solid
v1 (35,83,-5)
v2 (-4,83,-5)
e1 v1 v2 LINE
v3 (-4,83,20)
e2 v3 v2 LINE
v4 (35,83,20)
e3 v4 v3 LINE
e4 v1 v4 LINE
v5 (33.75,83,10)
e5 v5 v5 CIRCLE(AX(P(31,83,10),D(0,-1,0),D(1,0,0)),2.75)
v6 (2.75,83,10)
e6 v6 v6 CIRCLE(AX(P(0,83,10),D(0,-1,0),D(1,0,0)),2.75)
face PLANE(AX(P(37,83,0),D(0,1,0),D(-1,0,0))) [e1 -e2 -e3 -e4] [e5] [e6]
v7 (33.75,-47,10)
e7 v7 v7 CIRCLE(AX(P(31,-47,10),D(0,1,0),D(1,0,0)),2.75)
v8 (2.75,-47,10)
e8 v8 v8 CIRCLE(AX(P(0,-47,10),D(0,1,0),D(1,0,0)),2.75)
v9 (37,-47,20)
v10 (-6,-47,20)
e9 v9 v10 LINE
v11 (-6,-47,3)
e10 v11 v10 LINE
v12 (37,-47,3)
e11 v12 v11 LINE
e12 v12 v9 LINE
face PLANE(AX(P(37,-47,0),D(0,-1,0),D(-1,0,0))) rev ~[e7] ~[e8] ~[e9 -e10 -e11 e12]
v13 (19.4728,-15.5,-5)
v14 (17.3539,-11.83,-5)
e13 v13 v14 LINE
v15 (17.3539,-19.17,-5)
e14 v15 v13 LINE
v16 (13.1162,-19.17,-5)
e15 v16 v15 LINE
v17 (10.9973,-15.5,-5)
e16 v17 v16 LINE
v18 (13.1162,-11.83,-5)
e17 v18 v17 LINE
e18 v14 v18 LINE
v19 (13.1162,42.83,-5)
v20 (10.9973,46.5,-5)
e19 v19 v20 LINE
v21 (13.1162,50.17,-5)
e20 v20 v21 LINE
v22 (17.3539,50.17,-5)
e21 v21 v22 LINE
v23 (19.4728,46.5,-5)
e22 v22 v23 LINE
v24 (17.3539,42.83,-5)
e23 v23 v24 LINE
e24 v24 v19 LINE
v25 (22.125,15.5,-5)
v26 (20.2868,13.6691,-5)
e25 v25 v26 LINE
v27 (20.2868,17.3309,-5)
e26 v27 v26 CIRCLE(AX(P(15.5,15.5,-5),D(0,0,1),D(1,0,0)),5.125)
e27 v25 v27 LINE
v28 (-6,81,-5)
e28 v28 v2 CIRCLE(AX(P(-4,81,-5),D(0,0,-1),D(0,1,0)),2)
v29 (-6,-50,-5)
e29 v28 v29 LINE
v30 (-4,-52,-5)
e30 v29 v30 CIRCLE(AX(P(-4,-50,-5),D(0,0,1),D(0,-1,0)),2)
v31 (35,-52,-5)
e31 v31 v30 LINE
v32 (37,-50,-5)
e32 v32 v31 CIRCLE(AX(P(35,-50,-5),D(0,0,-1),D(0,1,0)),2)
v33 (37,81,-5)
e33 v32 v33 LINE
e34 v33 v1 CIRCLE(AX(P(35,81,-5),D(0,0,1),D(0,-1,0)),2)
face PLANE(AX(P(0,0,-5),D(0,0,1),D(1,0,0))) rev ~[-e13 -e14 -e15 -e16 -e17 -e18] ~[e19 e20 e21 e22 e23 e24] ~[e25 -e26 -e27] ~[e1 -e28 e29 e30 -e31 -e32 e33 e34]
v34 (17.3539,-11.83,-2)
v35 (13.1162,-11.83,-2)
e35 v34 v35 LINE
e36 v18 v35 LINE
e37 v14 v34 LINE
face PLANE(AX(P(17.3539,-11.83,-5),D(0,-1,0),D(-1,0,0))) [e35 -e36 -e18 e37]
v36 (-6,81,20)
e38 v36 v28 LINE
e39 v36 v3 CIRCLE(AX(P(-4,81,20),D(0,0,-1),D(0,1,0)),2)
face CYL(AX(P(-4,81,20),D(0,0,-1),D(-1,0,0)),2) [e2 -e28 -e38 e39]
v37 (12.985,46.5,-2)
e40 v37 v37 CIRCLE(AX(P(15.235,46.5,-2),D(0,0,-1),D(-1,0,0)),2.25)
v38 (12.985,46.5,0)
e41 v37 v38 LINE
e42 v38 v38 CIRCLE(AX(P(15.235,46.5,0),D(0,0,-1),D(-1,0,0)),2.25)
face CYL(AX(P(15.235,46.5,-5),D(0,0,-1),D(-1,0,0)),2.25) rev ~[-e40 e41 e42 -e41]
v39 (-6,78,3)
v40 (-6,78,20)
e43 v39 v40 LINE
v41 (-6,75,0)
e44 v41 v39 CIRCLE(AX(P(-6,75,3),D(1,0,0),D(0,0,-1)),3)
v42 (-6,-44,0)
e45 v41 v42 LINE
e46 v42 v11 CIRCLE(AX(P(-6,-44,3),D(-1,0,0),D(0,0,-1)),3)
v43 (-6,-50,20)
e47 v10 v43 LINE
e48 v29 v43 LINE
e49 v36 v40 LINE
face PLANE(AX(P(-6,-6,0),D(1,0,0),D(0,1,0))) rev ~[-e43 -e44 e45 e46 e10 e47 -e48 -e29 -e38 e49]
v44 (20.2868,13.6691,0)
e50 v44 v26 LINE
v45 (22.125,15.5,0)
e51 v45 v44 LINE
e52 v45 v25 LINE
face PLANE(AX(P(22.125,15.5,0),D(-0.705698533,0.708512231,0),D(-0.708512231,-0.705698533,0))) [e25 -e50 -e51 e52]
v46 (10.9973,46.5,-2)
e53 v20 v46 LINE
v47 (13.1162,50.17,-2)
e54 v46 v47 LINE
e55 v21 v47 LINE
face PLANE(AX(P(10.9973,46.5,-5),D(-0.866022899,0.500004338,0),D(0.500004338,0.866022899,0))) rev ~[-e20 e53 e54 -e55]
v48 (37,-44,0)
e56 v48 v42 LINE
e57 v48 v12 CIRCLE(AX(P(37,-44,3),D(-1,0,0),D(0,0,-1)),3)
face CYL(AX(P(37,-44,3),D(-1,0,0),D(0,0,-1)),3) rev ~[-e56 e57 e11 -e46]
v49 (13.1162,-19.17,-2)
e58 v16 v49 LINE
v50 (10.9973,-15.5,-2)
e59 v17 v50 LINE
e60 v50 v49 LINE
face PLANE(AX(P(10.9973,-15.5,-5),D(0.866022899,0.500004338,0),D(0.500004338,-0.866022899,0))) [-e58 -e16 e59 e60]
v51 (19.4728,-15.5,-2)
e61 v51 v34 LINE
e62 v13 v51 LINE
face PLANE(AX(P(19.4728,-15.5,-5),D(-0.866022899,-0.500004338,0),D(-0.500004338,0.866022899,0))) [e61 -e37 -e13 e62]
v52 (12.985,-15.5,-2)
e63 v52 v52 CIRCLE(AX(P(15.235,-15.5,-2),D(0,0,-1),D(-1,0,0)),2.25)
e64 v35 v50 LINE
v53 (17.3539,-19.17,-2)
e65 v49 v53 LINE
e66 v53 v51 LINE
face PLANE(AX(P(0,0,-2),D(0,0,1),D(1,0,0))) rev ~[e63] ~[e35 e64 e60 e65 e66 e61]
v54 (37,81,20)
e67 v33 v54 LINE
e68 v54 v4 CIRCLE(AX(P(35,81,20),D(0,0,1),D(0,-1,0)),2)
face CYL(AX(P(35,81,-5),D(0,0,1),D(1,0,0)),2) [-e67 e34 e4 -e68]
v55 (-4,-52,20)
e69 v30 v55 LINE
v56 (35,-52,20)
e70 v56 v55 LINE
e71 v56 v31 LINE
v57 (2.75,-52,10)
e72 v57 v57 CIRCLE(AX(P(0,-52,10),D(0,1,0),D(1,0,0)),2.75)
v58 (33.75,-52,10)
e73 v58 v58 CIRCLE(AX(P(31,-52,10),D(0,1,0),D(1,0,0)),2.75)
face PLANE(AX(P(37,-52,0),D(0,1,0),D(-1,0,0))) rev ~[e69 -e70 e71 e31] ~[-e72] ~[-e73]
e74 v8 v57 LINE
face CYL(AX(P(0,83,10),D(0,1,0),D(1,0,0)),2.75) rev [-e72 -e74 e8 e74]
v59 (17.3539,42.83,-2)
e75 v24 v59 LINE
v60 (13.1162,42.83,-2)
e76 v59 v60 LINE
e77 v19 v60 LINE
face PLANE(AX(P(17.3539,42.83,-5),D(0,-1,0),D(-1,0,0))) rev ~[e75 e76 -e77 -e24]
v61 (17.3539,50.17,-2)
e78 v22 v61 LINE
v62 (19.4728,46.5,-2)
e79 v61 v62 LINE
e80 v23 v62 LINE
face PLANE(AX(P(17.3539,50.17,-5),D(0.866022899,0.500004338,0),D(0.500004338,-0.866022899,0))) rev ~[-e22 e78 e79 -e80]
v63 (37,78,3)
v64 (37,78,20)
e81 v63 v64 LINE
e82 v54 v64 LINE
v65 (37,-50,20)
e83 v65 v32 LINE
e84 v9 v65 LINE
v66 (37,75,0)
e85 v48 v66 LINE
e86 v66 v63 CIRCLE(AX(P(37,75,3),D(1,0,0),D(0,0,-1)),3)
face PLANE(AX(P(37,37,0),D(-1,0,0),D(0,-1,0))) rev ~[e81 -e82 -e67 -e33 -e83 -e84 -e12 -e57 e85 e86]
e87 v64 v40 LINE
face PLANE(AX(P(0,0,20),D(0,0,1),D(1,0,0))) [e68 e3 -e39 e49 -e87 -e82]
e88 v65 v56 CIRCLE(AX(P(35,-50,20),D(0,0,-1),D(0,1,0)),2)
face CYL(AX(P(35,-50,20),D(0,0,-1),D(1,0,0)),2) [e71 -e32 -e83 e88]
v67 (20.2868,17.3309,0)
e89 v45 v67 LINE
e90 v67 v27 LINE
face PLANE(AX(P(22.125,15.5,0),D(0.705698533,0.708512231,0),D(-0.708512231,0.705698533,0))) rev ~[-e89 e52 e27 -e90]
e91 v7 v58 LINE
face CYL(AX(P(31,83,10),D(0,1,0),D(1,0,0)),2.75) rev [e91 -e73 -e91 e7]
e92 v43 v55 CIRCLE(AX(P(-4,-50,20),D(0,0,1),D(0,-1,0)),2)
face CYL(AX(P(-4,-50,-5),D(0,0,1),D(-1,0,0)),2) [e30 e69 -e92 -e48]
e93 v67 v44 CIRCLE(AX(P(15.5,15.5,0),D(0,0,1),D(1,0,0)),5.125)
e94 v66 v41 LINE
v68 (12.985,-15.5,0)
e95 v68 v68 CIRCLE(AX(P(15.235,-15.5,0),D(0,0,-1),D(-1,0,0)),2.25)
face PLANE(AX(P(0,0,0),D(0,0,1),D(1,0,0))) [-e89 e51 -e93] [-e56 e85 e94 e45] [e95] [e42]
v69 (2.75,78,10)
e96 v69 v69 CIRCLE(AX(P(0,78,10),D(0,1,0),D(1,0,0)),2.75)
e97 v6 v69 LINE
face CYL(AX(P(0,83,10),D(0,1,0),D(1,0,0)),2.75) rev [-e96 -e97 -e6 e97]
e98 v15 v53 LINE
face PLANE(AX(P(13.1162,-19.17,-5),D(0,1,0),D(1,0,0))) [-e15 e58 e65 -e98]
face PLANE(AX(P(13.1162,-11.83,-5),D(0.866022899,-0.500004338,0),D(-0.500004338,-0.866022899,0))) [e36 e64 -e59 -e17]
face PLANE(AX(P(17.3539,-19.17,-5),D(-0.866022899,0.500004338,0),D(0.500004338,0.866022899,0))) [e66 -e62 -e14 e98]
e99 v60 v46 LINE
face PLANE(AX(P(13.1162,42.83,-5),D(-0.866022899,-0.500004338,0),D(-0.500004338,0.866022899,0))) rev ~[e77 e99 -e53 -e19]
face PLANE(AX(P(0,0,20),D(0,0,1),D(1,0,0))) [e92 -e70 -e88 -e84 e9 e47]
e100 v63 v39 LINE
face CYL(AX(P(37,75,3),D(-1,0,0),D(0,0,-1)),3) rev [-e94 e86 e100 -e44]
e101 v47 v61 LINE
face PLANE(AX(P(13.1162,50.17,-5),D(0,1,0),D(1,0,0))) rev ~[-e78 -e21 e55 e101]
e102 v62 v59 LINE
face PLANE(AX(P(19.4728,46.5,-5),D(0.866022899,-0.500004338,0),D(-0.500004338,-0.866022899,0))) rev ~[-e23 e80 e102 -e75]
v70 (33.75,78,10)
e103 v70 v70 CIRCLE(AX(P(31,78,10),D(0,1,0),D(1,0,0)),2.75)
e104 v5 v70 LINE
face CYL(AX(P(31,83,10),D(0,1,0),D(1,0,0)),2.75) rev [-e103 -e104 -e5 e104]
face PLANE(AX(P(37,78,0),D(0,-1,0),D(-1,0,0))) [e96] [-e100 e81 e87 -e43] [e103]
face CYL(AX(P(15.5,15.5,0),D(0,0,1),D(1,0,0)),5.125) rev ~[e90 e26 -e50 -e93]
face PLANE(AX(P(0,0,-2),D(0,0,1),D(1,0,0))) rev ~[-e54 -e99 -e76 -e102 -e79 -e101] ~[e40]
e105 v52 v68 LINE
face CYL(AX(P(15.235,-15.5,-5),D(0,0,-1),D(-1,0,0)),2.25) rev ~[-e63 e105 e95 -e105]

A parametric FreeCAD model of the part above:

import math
import FreeCAD as App
import Part
import Sketcher

V = App.Vector
Q = App.Units.Quantity


def edges_at(feature, points):
    """Names of the edges that pass closest to the given points."""
    edges = feature.Shape.Edges
    near = lambda p: min(range(len(edges)), key=lambda i: edges[i].distToShape(Part.Vertex(*p))[0])
    return sorted({f"Edge{near(p) + 1}" for p in points})


def add_polygon(sketch, points):
    """Adds a closed chain of lines whose ends are joined by coincident constraints."""
    first, n = sketch.GeometryCount, len(points)
    for a, b in zip(points, points[1:] + points[:1]):
        sketch.addGeometry(Part.LineSegment(App.Vector(*a, 0), App.Vector(*b, 0)), False)
    for i in range(n):
        sketch.addConstraint(Sketcher.Constraint("Coincident", first + i, 2, first + (i + 1) % n, 1))

doc = App.newDocument("Part")
params = doc.addObject("Spreadsheet::Sheet", "Params")
for row, (alias, value) in enumerate([
    ("sketch1_width", "43 mm"),
    ("pad1_length", "5 mm"),
    ("sketch2_height", "5 mm"),
    ("sketch2_width", "43 mm"),
    ("pad2_length", "20 mm"),
    ("sketch3_diameter", "5.5 mm"),
    ("pocket1_length", "160.5 mm"),
    ("sketch4_diameter", "4.5 mm"),
    ("pocket2_length", "10 mm"),
    ("pocket3_length", "3 mm"),
    ("fillet_radius", "3 mm"),
    ("fillet2_radius", "2 mm"),
], start=1):
    params.set(f"A{row}", alias)
    params.set(f"B{row}", "=" + value)
    params.setAlias(f"B{row}", alias)

body = doc.addObject("PartDesign::Body", "Body")

# Sketch on XY plane
sketch1 = doc.addObject("Sketcher::SketchObject", "Sketch")
body.addObject(sketch1)
sketch1.AttachmentSupport = (doc.XY_Plane, [""])
sketch1.MapMode = "FlatFace"
add_polygon(sketch1, [(37, 83), (-6, 83), (-6, -52), (37, -52)])  # lines 0-3
sketch1.addGeometry(Part.ArcOfCircle(Part.Circle(V(15.5, 15.5, 0), V(0, 0, 1), 5.125), math.radians(20.93132), math.radians(339.06868)), False)  # 4
sketch1.addGeometry(Part.LineSegment(V(20.2868, 17.3309, 0), V(22.125, 15.5, 0)), False)  # 5
sketch1.addGeometry(Part.LineSegment(V(22.125, 15.5, 0), V(20.2868, 13.6691, 0)), False)  # 6
sketch1.addConstraint([
    Sketcher.Constraint("Coincident", 4, 1, 5, 1),
    Sketcher.Constraint("Coincident", 5, 2, 6, 1),
    Sketcher.Constraint("Coincident", 6, 2, 4, 2),
    Sketcher.Constraint("Horizontal", 0),
    Sketcher.Constraint("Vertical", 1),
    Sketcher.Constraint("Horizontal", 2),
    Sketcher.Constraint("Vertical", 3),
    Sketcher.Constraint("Horizontal", 4, 3, 5, 2),
    Sketcher.Constraint("Vertical", 4, 1, 6, 2),
    Sketcher.Constraint("DistanceX", 0, 2, 0, 1, Q("43 mm")),
    Sketcher.Constraint("Radius", 4, Q("5.125 mm")),
    Sketcher.Constraint("DistanceY", 4, 3, 0, 2, Q("67.5 mm")),
    Sketcher.Constraint("DistanceY", 1, 2, 4, 3, Q("67.5 mm")),
    Sketcher.Constraint("DistanceX", 0, 2, -1, 1, Q("6 mm")),
    Sketcher.Constraint("DistanceY", -1, 1, 0, 2, Q("83 mm")),
    Sketcher.Constraint("DistanceX", -1, 1, 4, 3, Q("15.5 mm")),
    Sketcher.Constraint("DistanceY", -1, 1, 4, 1, Q("17.331 mm")),
    Sketcher.Constraint("DistanceX", -1, 1, 5, 2, Q("22.125 mm")),
])
sketch1.setExpression("Constraints[13]", "Params.sketch1_width")
pad1 = doc.addObject("PartDesign::Pad", "Pad")
body.addObject(pad1)
pad1.Profile = sketch1
pad1.setExpression("Length", "Params.pad1_length")
pad1.Reversed = True

# Sketch on XY plane
sketch2 = doc.addObject("Sketcher::SketchObject", "Sketch001")
body.addObject(sketch2)
sketch2.AttachmentSupport = (doc.XY_Plane, [""])
sketch2.MapMode = "FlatFace"
add_polygon(sketch2, [(-6, -52), (37, -52), (37, -47), (-6, -47)])  # lines 0-3
add_polygon(sketch2, [(-6, 78), (37, 78), (37, 83), (-6, 83)])  # lines 4-7
sketch2.addConstraint([
    Sketcher.Constraint("Horizontal", 0),
    Sketcher.Constraint("Vertical", 1),
    Sketcher.Constraint("Horizontal", 2),
    Sketcher.Constraint("Vertical", 3),
    Sketcher.Constraint("Horizontal", 4),
    Sketcher.Constraint("Vertical", 5),
    Sketcher.Constraint("Horizontal", 6),
    Sketcher.Constraint("Vertical", 7),
    Sketcher.Constraint("Vertical", 1, 2, 4, 2),
    Sketcher.Constraint("Vertical", 3, 2, 6, 2),
    Sketcher.Constraint("Equal", 3, 5),
    Sketcher.Constraint("DistanceY", 1, 1, 1, 2, Q("5 mm")),
    Sketcher.Constraint("DistanceX", 0, 1, 0, 2, Q("43 mm")),
    Sketcher.Constraint("DistanceX", -1, 1, 0, 2, Q("37 mm")),
    Sketcher.Constraint("DistanceY", 0, 2, -1, 1, Q("52 mm")),
    Sketcher.Constraint("DistanceY", -1, 1, 4, 2, Q("78 mm")),
])
sketch2.setExpression("Constraints[19]", "Params.sketch2_height")
sketch2.setExpression("Constraints[20]", "Params.sketch2_width")
pad2 = doc.addObject("PartDesign::Pad", "Pad001")
body.addObject(pad2)
pad2.Profile = sketch2
pad2.setExpression("Length", "Params.pad2_length")

# Sketch on XZ plane
sketch3 = doc.addObject("Sketcher::SketchObject", "Sketch002")
body.addObject(sketch3)
sketch3.AttachmentSupport = (doc.XZ_Plane, [""])
sketch3.MapMode = "FlatFace"
sketch3.AttachmentOffset = App.Placement(V(0, 0, -83), App.Rotation())
sketch3.addGeometry([
    Part.Circle(V(0, 10, 0), V(0, 0, 1), 2.75),
    Part.Circle(V(31, 10, 0), V(0, 0, 1), 2.75),
], False)
sketch3.addConstraint([
    Sketcher.Constraint("Equal", 0, 1),
    Sketcher.Constraint("PointOnObject", 0, 3, -2),
    Sketcher.Constraint("Horizontal", 0, 3, 1, 3),
    Sketcher.Constraint("Diameter", 0, Q("5.5 mm")),
    Sketcher.Constraint("DistanceY", -1, 1, 0, 3, Q("10 mm")),
    Sketcher.Constraint("DistanceX", -1, 1, 1, 3, Q("31 mm")),
])
sketch3.setExpression("Constraints[3]", "Params.sketch3_diameter")
pocket1 = doc.addObject("PartDesign::Pocket", "Pocket")
body.addObject(pocket1)
pocket1.Profile = sketch3
pocket1.setExpression("Length", "Params.pocket1_length")
pocket1.Reversed = True

# Sketch on XY plane
sketch4 = doc.addObject("Sketcher::SketchObject", "Sketch003")
body.addObject(sketch4)
sketch4.AttachmentSupport = (doc.XY_Plane, [""])
sketch4.MapMode = "FlatFace"
sketch4.AttachmentOffset = App.Placement(V(0, 0, -5), App.Rotation())
sketch4.addGeometry([
    Part.Circle(V(15.235, 46.5, 0), V(0, 0, 1), 2.25),
    Part.Circle(V(15.235, -15.5, 0), V(0, 0, 1), 2.25),
], False)
sketch4.addConstraint([
    Sketcher.Constraint("Equal", 0, 1),
    Sketcher.Constraint("Vertical", 0, 3, 1, 3),
    Sketcher.Constraint("Diameter", 0, Q("4.5 mm")),
    Sketcher.Constraint("DistanceY", 1, 3, 0, 3, Q("62 mm")),
    Sketcher.Constraint("DistanceY", -1, 1, 0, 3, Q("46.5 mm")),
    Sketcher.Constraint("DistanceX", -1, 1, 0, 3, Q("15.235 mm")),
])
sketch4.setExpression("Constraints[2]", "Params.sketch4_diameter")
pocket2 = doc.addObject("PartDesign::Pocket", "Pocket001")
body.addObject(pocket2)
pocket2.Profile = sketch4
pocket2.setExpression("Length", "Params.pocket2_length")
pocket2.Reversed = True

# Sketch on XY plane
sketch5 = doc.addObject("Sketcher::SketchObject", "Sketch004")
body.addObject(sketch5)
sketch5.AttachmentSupport = (doc.XY_Plane, [""])
sketch5.MapMode = "FlatFace"
sketch5.AttachmentOffset = App.Placement(V(0, 0, -5), App.Rotation())
add_polygon(sketch5, [(13.1162, -11.83), (10.9973, -15.5), (13.1162, -19.17), (17.3539, -19.17), (19.4728, -15.5), (17.3539, -11.83)])  # lines 0-5
add_polygon(sketch5, [(13.1162, 50.17), (10.9973, 46.5), (13.1162, 42.83), (17.3539, 42.83), (19.4728, 46.5), (17.3539, 50.17)])  # lines 6-11
sketch5.addConstraint([
    Sketcher.Constraint("Horizontal", 2),
    Sketcher.Constraint("Horizontal", 5),
    Sketcher.Constraint("Horizontal", 8),
    Sketcher.Constraint("Horizontal", 11),
    Sketcher.Constraint("Parallel", 0, 3),
    Sketcher.Constraint("Parallel", 1, 4),
    Sketcher.Constraint("Parallel", 3, 6),
    Sketcher.Constraint("Parallel", 4, 7),
    Sketcher.Constraint("Parallel", 6, 9),
    Sketcher.Constraint("Parallel", 7, 10),
    Sketcher.Constraint("Horizontal", 0, 2, 3, 2),
    Sketcher.Constraint("Horizontal", 6, 2, 9, 2),
    Sketcher.Constraint("Vertical", 2, 2, 4, 2),
    Sketcher.Constraint("Vertical", 1, 2, 5, 2),
    Sketcher.Constraint("Vertical", 0, 2, 6, 2),
    Sketcher.Constraint("Vertical", 5, 2, 7, 2),
    Sketcher.Constraint("Vertical", 4, 2, 8, 2),
    Sketcher.Constraint("Vertical", 8, 2, 10, 2),
    Sketcher.Constraint("Angle", 0, Q("-120.0003 deg")),
    Sketcher.Constraint("DistanceY", 0, 2, 6, 2, Q("62 mm")),
    Sketcher.Constraint("DistanceY", 0, 2, -1, 1, Q("15.5 mm")),
    Sketcher.Constraint("DistanceY", 1, 2, -1, 1, Q("19.17 mm")),
    Sketcher.Constraint("DistanceX", 2, 1, 2, 2, Q("4.2377 mm")),
    Sketcher.Constraint("DistanceX", -1, 1, 2, 2, Q("17.354 mm")),
])
pocket3 = doc.addObject("PartDesign::Pocket", "Pocket002")
body.addObject(pocket3)
pocket3.Profile = sketch5
pocket3.setExpression("Length", "Params.pocket3_length")
pocket3.Reversed = True
doc.recompute()

fillet = doc.addObject("PartDesign::Fillet", "Fillet")
body.addObject(fillet)
fillet.Base = (pocket3, edges_at(pocket3, [(15.5, 78, 0), (15.5, -47, 0)]))
fillet.setExpression("Radius", "Params.fillet_radius")
doc.recompute()

fillet2 = doc.addObject("PartDesign::Fillet", "Fillet001")
body.addObject(fillet2)
fillet2.Base = (fillet, edges_at(fillet, [
    (37, -52, 7.5),
    (37, 83, 7.5),
    (-6, 83, 7.5),
    (-6, -52, 7.5),
]))
fillet2.setExpression("Radius", "Params.fillet2_radius")

doc.recompute()
